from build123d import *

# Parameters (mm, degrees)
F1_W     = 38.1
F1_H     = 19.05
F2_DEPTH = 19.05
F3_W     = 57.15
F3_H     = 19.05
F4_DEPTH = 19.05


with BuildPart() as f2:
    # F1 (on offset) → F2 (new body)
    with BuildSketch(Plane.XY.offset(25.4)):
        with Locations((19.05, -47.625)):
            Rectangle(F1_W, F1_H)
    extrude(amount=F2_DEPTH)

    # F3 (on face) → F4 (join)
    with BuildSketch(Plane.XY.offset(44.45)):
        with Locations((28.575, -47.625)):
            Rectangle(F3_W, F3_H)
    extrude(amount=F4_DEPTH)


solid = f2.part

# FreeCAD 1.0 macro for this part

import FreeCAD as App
import Part
import Sketcher

V = App.Vector
Q = App.Units.Quantity

doc = App.newDocument("Part")
body = doc.addObject("PartDesign::Body", "Body")

# Sketch on XY plane
sketch1 = doc.addObject("Sketcher::SketchObject", "Sketch")
body.addObject(sketch1)
sketch1.AttachmentSupport = (doc.XY_Plane, [""])
sketch1.MapMode = "FlatFace"
sketch1.AttachmentOffset = App.Placement(V(0, 0, 1 * 25.4), App.Rotation())
sketch1.addGeometry([
    Part.LineSegment(V(0, -38, 0), V(0, -57, 0)),
    Part.LineSegment(V(0, -57, 0), V(38, -57, 0)),
    Part.LineSegment(V(38, -57, 0), V(38, -38, 0)),
    Part.LineSegment(V(38, -38, 0), V(0, -38, 0)),
], False)
sketch1.addConstraint([
    Sketcher.Constraint("Coincident", 0, 2, 1, 1),
    Sketcher.Constraint("Coincident", 1, 2, 2, 1),
    Sketcher.Constraint("Coincident", 2, 2, 3, 1),
    Sketcher.Constraint("Coincident", 3, 2, 0, 1),
    Sketcher.Constraint("Vertical", 0),
    Sketcher.Constraint("Horizontal", 1),
    Sketcher.Constraint("Vertical", 2),
    Sketcher.Constraint("Horizontal", 3),
    Sketcher.Constraint("PointOnObject", 0, 2, -2),
    Sketcher.Constraint("DistanceX", 1, 1, 1, 2, Q("1.5 in")),
    Sketcher.Constraint("DistanceY", 0, 2, 0, 1, Q("0.75 in")),
    Sketcher.Constraint("DistanceY", 2, 2, -1, 1, Q("1.5 in")),
])
pad1 = doc.addObject("PartDesign::Pad", "Pad")
body.addObject(pad1)
pad1.Profile = sketch1
pad1.Length = Q("0.75 in")

# Sketch on XY plane
sketch2 = doc.addObject("Sketcher::SketchObject", "Sketch001")
body.addObject(sketch2)
sketch2.AttachmentSupport = (doc.XY_Plane, [""])
sketch2.MapMode = "FlatFace"
sketch2.AttachmentOffset = App.Placement(V(0, 0, 1.75 * 25.4), App.Rotation())
sketch2.addGeometry([
    Part.LineSegment(V(0, -38, 0), V(0, -57, 0)),
    Part.LineSegment(V(0, -57, 0), V(57, -57, 0)),
    Part.LineSegment(V(57, -57, 0), V(57, -38, 0)),
    Part.LineSegment(V(57, -38, 0), V(0, -38, 0)),
], False)
sketch2.addConstraint([
    Sketcher.Constraint("Coincident", 0, 2, 1, 1),
    Sketcher.Constraint("Coincident", 1, 2, 2, 1),
    Sketcher.Constraint("Coincident", 2, 2, 3, 1),
    Sketcher.Constraint("Coincident", 3, 2, 0, 1),
    Sketcher.Constraint("Vertical", 0),
    Sketcher.Constraint("Horizontal", 1),
    Sketcher.Constraint("Vertical", 2),
    Sketcher.Constraint("Horizontal", 3),
    Sketcher.Constraint("PointOnObject", 0, 2, -2),
    Sketcher.Constraint("DistanceX", 1, 1, 1, 2, Q("2.25 in")),
    Sketcher.Constraint("DistanceY", 0, 2, 0, 1, Q("0.75 in")),
    Sketcher.Constraint("DistanceY", 2, 2, -1, 1, Q("1.5 in")),
])
pad2 = doc.addObject("PartDesign::Pad", "Pad001")
body.addObject(pad2)
pad2.Profile = sketch2
pad2.Length = Q("0.75 in")

doc.recompute()
